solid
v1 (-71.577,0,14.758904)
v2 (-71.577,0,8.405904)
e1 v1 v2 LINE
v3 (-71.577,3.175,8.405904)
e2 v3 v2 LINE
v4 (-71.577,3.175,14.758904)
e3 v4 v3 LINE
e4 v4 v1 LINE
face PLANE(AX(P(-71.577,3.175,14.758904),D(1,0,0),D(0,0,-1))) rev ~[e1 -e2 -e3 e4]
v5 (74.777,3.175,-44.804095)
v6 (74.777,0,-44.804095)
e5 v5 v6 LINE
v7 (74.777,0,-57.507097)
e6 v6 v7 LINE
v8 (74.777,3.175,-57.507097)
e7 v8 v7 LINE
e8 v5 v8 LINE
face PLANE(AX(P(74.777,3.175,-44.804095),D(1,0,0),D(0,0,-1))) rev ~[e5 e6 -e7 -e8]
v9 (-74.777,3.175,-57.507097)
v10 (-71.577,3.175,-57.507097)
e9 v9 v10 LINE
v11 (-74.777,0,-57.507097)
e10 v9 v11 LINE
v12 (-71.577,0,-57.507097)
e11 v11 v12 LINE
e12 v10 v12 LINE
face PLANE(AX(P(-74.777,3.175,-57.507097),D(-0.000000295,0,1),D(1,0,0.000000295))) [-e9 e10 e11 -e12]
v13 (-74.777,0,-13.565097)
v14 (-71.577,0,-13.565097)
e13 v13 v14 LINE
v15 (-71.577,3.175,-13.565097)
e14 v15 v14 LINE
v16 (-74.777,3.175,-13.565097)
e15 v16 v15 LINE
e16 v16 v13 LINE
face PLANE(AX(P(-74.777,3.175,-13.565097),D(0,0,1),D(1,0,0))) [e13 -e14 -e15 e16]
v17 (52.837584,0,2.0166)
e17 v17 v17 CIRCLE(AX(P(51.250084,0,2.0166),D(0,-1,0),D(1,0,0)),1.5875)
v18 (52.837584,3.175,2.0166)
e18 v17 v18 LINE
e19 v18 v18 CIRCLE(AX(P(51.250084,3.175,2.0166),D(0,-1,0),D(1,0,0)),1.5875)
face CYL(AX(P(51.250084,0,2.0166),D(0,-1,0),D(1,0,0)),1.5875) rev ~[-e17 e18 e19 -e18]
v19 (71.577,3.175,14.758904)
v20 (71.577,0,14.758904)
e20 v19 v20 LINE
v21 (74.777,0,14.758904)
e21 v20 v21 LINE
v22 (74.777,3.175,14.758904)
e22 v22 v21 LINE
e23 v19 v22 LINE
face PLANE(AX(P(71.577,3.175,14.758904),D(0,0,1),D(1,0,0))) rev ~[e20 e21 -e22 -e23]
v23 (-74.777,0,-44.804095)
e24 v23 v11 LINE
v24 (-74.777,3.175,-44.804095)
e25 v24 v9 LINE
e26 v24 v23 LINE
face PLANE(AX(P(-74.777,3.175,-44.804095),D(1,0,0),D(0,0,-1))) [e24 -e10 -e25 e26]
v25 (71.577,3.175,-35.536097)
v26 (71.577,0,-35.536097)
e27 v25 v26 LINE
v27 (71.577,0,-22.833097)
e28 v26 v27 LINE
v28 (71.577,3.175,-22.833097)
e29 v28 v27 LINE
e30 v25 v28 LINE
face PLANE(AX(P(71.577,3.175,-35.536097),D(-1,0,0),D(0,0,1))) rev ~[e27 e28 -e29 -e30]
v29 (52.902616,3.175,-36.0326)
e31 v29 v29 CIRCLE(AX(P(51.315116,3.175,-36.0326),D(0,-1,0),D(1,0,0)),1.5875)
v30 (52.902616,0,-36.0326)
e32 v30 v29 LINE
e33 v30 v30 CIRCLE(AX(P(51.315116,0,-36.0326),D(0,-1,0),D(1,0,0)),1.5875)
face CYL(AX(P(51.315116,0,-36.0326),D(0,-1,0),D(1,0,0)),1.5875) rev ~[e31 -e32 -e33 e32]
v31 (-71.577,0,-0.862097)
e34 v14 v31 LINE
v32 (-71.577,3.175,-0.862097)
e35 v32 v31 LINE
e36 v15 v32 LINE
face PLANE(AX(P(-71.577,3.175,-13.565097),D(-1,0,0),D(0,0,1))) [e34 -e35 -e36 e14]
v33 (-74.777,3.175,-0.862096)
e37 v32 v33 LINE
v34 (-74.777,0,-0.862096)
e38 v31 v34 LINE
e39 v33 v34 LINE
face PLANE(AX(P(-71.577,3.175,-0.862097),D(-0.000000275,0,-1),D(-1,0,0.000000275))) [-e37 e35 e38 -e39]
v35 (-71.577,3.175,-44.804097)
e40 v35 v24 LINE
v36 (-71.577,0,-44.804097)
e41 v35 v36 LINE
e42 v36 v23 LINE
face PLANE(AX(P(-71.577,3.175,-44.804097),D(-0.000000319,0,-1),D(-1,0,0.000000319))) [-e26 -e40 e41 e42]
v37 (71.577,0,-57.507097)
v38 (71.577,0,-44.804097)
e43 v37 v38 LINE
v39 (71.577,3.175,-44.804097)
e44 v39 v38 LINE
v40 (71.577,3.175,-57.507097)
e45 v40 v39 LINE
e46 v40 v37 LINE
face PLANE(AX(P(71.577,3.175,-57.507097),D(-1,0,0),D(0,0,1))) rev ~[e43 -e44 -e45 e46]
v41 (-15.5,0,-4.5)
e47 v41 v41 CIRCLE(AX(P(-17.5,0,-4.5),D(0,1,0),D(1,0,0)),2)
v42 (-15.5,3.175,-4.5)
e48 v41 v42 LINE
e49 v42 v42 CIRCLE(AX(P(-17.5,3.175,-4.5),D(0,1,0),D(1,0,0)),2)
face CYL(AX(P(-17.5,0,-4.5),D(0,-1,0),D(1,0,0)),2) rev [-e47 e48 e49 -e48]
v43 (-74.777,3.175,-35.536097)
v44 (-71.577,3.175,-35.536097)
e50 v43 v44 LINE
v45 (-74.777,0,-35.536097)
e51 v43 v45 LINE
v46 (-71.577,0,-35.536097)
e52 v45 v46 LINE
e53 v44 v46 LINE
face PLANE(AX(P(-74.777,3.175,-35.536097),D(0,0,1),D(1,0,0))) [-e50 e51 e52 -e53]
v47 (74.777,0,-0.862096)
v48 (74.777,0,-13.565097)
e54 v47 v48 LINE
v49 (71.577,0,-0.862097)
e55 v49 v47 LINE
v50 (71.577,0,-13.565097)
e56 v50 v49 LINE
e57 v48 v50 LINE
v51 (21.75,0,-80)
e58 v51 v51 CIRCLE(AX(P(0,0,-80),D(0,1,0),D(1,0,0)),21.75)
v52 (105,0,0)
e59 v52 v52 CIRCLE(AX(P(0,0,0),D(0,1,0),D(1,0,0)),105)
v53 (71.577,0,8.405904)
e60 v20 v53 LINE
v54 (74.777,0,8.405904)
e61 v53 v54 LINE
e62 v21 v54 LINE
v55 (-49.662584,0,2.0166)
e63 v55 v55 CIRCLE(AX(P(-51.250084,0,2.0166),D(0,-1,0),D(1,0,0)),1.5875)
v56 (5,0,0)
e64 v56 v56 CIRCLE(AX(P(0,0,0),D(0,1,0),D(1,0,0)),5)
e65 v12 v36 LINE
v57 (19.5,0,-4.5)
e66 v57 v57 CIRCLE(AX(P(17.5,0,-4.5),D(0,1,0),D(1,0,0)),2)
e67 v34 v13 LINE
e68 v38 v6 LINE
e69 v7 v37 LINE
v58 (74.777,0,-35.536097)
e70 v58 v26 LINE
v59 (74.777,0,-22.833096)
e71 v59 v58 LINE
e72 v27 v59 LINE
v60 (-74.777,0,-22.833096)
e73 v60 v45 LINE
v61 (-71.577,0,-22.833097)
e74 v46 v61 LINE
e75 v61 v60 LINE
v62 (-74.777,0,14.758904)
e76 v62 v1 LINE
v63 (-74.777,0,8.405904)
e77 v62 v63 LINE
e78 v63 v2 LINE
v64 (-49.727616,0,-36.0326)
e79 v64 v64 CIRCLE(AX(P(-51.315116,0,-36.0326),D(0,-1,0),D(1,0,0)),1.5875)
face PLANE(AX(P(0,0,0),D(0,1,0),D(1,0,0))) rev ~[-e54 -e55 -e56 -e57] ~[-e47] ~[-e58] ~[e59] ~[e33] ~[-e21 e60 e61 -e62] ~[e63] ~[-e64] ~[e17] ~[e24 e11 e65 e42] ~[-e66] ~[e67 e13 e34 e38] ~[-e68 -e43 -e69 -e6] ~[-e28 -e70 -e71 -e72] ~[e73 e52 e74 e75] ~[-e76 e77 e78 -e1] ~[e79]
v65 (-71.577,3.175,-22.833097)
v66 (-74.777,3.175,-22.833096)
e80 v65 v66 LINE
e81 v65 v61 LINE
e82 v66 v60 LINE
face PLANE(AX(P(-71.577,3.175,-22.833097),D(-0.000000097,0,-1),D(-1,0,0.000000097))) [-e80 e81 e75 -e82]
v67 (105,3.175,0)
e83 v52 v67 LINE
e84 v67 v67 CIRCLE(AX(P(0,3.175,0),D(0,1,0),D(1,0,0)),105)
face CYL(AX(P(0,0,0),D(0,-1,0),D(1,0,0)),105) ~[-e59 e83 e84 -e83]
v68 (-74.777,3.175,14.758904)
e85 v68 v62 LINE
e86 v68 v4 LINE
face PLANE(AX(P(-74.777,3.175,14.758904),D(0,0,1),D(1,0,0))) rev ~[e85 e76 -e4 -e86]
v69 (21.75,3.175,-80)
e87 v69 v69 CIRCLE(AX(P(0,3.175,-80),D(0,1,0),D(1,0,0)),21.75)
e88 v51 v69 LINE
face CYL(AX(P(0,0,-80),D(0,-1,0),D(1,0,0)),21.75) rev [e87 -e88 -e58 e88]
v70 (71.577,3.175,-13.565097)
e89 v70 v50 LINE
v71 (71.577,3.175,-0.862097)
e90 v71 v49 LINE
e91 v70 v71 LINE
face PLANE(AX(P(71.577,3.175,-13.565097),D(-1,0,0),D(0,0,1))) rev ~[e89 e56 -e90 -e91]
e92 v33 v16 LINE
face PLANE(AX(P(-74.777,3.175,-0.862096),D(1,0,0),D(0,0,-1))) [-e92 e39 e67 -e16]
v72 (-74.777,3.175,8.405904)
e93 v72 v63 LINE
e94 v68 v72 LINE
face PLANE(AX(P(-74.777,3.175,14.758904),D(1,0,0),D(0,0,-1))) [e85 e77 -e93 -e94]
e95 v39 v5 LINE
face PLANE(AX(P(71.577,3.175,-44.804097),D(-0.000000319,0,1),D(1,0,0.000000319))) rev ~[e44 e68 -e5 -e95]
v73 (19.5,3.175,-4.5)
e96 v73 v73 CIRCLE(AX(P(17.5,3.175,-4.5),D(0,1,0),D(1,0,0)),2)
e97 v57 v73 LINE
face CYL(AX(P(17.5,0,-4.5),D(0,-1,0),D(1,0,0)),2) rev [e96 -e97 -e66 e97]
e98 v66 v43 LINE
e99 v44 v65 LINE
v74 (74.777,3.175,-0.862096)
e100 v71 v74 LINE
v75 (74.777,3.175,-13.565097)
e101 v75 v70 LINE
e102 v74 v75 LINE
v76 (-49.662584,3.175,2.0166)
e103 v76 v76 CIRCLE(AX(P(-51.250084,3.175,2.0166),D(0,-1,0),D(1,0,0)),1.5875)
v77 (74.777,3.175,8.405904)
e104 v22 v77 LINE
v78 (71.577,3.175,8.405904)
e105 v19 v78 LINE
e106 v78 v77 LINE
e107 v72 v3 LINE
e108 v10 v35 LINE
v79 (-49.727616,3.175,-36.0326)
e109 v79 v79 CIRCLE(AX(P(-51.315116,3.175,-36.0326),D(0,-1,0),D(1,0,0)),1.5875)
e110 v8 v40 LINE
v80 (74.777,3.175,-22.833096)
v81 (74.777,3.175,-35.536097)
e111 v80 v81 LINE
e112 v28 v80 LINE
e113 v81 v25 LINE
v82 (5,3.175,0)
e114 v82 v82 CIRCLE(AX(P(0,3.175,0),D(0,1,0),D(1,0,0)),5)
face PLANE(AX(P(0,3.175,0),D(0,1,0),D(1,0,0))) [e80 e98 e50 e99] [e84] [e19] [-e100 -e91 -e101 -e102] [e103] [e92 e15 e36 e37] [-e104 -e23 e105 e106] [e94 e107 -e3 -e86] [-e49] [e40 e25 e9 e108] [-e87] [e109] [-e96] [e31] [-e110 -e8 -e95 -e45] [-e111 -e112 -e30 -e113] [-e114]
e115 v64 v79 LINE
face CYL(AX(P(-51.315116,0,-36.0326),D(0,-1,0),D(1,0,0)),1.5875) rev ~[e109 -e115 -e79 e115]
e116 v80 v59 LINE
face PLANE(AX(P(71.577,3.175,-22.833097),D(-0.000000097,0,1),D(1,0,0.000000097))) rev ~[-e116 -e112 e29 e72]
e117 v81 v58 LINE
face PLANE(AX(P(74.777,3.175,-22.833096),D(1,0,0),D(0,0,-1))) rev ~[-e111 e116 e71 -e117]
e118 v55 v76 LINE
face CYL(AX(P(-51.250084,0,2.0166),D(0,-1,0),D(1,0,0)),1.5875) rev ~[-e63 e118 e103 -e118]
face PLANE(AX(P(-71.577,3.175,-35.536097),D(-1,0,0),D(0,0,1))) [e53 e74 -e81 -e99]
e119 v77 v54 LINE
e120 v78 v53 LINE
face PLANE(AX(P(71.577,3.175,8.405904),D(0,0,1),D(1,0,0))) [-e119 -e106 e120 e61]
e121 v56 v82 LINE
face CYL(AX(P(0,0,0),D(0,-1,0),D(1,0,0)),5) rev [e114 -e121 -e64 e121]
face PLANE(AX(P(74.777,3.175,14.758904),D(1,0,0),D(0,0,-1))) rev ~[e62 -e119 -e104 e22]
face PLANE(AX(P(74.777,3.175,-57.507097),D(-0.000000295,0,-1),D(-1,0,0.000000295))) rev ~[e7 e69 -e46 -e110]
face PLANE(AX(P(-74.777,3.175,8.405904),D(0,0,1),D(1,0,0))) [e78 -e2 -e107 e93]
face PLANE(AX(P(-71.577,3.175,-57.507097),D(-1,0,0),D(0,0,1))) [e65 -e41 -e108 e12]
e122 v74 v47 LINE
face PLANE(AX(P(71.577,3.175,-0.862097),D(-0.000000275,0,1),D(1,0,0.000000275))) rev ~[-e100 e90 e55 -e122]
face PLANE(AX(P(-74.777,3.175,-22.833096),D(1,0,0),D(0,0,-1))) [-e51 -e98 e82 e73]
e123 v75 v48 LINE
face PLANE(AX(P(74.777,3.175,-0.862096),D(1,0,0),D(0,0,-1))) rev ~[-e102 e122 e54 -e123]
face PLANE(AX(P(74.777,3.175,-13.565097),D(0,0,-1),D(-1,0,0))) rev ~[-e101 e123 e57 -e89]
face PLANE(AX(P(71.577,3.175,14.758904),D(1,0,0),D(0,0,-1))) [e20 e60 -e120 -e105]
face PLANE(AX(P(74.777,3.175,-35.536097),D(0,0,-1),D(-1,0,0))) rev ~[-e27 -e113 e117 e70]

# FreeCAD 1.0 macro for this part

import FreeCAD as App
import Part
import Sketcher
from FreeCAD import Vector


def add_polygon(sketch, points):
    """Adds a closed chain of lines whose ends are joined by coincident constraints."""
    first, n = sketch.GeometryCount, len(points)
    for a, b in zip(points, points[1:] + points[:1]):
        sketch.addGeometry(Part.LineSegment(App.Vector(*a, 0), App.Vector(*b, 0)), False)
    for i in range(n):
        sketch.addConstraint(Sketcher.Constraint("Coincident", first + i, 2, first + (i + 1) % n, 1))

doc = App.newDocument("Part")
body = doc.addObject("PartDesign::Body", "Body")

sketch1 = doc.addObject("Sketcher::SketchObject", "Sketch")
body.addObject(sketch1)
sketch1.AttachmentSupport = (doc.XZ_Plane, [""])
sketch1.MapMode = "FlatFace"
sketch1.addGeometry([
    Part.Circle(Vector(0, 0, 0), Vector(0, 0, 1), 105),
    Part.Circle(Vector(-17.5, -4.5, 0), Vector(0, 0, 1), 2),
    Part.Circle(Vector(0, 0, 0), Vector(0, 0, 1), 5),
    Part.Circle(Vector(17.5, -4.5, 0), Vector(0, 0, 1), 2),
    Part.Circle(Vector(0, -80, 0), Vector(0, 0, 1), 21.8),
], False)
sketch1.addConstraint([
    Sketcher.Constraint("Coincident", 0, 3, -1, 1),
    Sketcher.Constraint("Coincident", 2, 3, -1, 1),
    Sketcher.Constraint("Equal", 1, 3),
    Sketcher.Constraint("Symmetric", 1, 3, 3, 3, -2),
    Sketcher.Constraint("PointOnObject", 4, 3, -2),
    Sketcher.Constraint("Diameter", 0, 210.0),
    Sketcher.Constraint("Diameter", 1, 4.0),
    Sketcher.Constraint("Diameter", 2, 10.0),
    Sketcher.Constraint("Diameter", 4, 43.5),
    Sketcher.Constraint("DistanceY", 4, 3, -1, 1, 80.0),
    Sketcher.Constraint("DistanceX", 1, 3, 3, 3, 35.0),
    Sketcher.Constraint("DistanceY", 1, 3, -1, 1, 4.5),
])
pad1 = doc.addObject("PartDesign::Pad", "Pad")
body.addObject(pad1)
pad1.Profile = sketch1
pad1.Length = 3.175
pad1.Reversed = True

sketch2 = doc.addObject("Sketcher::SketchObject", "Sketch001")
body.addObject(sketch2)
sketch2.AttachmentSupport = (doc.XZ_Plane, [""])
sketch2.MapMode = "FlatFace"
sketch2.AttachmentOffset = App.Placement(Vector(0, 0, -3.175), App.Rotation())
add_polygon(sketch2, [(-71.6, -57.5), (-74.8, -57.5), (-74.8, -44.8), (-71.6, -44.8)])
add_polygon(sketch2, [(71.6, 8.4), (71.6, 14.8), (74.8, 14.8), (74.8, 8.4)])
add_polygon(sketch2, [(-71.6, -35.5), (-74.8, -35.5), (-74.8, -22.8), (-71.6, -22.8)])
add_polygon(sketch2, [(-71.6, -13.6), (-74.8, -13.6), (-74.8, -0.9), (-71.6, -0.9)])
add_polygon(sketch2, [(-74.8, 8.4), (-74.8, 14.8), (-71.6, 14.8), (-71.6, 8.4)])
add_polygon(sketch2, [(71.6, -13.6), (71.6, -0.9), (74.8, -0.9), (74.8, -13.6)])
add_polygon(sketch2, [(71.6, -35.5), (71.6, -22.8), (74.8, -22.8), (74.8, -35.5)])
add_polygon(sketch2, [(71.6, -57.5), (71.6, -44.8), (74.8, -44.8), (74.8, -57.5)])
sketch2.addConstraint([
    Sketcher.Constraint("Horizontal", 0),
    Sketcher.Constraint("Vertical", 1),
    Sketcher.Constraint("Horizontal", 2),
    Sketcher.Constraint("Vertical", 3),
    Sketcher.Constraint("Vertical", 4),
    Sketcher.Constraint("Horizontal", 5),
    Sketcher.Constraint("Vertical", 6),
    Sketcher.Constraint("Horizontal", 7),
    Sketcher.Constraint("Horizontal", 8),
    Sketcher.Constraint("Vertical", 9),
    Sketcher.Constraint("Horizontal", 10),
    Sketcher.Constraint("Vertical", 11),
    Sketcher.Constraint("Horizontal", 12),
    Sketcher.Constraint("Vertical", 13),
    Sketcher.Constraint("Horizontal", 14),
    Sketcher.Constraint("Vertical", 15),
    Sketcher.Constraint("Vertical", 16),
    Sketcher.Constraint("Horizontal", 17),
    Sketcher.Constraint("Vertical", 18),
    Sketcher.Constraint("Horizontal", 19),
    Sketcher.Constraint("Vertical", 20),
    Sketcher.Constraint("Horizontal", 21),
    Sketcher.Constraint("Vertical", 22),
    Sketcher.Constraint("Horizontal", 23),
    Sketcher.Constraint("Vertical", 24),
    Sketcher.Constraint("Horizontal", 25),
    Sketcher.Constraint("Vertical", 26),
    Sketcher.Constraint("Horizontal", 27),
    Sketcher.Constraint("Vertical", 28),
    Sketcher.Constraint("Horizontal", 29),
    Sketcher.Constraint("Vertical", 30),
    Sketcher.Constraint("Horizontal", 31),
    Sketcher.Constraint("Symmetric", 5, 2, 16, 2, -2),
    Sketcher.Constraint("Symmetric", 7, 2, 18, 2, -2),
    Sketcher.Constraint("Symmetric", 14, 2, 20, 2, -2),
    Sketcher.Constraint("Symmetric", 12, 2, 22, 2, -2),
    Sketcher.Constraint("Symmetric", 10, 2, 24, 2, -2),
    Sketcher.Constraint("Symmetric", 8, 2, 26, 2, -2),
    Sketcher.Constraint("Symmetric", 2, 2, 28, 2, -2),
    Sketcher.Constraint("Symmetric", 0, 2, 30, 2, -2),
    Sketcher.Constraint("Vertical", 1, 2, 8, 2),
    Sketcher.Constraint("Vertical", 3, 2, 10, 2),
    Sketcher.Constraint("Vertical", 9, 2, 12, 2),
    Sketcher.Constraint("Vertical", 11, 2, 14, 2),
    Sketcher.Constraint("Vertical", 13, 2, 16, 2),
    Sketcher.Constraint("Vertical", 15, 2, 17, 2),
    Sketcher.Constraint("Equal", 3, 9),
    Sketcher.Constraint("Equal", 11, 13),
    Sketcher.Constraint("DistanceX", 0, 2, 0, 1, 3.2),
    Sketcher.Constraint("DistanceY", 1, 1, 1, 2, 12.703002),
    Sketcher.Constraint("DistanceY", 4, 1, 4, 2, 6.353),
    Sketcher.Constraint("DistanceY", 2, 2, 6, 2, 53.21),
    Sketcher.Constraint("DistanceX", 0, 2, -1, 1, 74.777),
    Sketcher.Constraint("DistanceY", 1, 2, 8, 2, 9.267999),
    Sketcher.Constraint("DistanceY", 9, 2, 12, 2, 9.268),
    Sketcher.Constraint("DistanceY", 0, 2, -1, 1, 57.507097),
])
pocket1 = doc.addObject("PartDesign::Pocket", "Pocket")
body.addObject(pocket1)
pocket1.Profile = sketch2
pocket1.Type = "ThroughAll"
pocket1.Reversed = True

sketch3 = doc.addObject("Sketcher::SketchObject", "Sketch002")
body.addObject(sketch3)
sketch3.AttachmentSupport = (doc.XZ_Plane, [""])
sketch3.MapMode = "FlatFace"
sketch3.addGeometry([
    Part.Circle(Vector(51.3, 2, 0), Vector(0, 0, 1), 1.6),
    Part.Circle(Vector(-51.3, -36, 0), Vector(0, 0, 1), 1.6),
    Part.Circle(Vector(-51.3, 2, 0), Vector(0, 0, 1), 1.6),
    Part.Circle(Vector(51.3, -36, 0), Vector(0, 0, 1), 1.6),
], False)
sketch3.addConstraint([
    Sketcher.Constraint("Equal", 0, 1),
    Sketcher.Constraint("Equal", 1, 2),
    Sketcher.Constraint("Equal", 2, 3),
    Sketcher.Constraint("Symmetric", 0, 3, 2, 3, -2),
    Sketcher.Constraint("Symmetric", 1, 3, 3, 3, -2),
    Sketcher.Constraint("Diameter", 0, 3.175),
    Sketcher.Constraint("DistanceY", -1, 1, 0, 3, 2.0166),
    Sketcher.Constraint("DistanceY", 1, 3, -1, 1, 36.0326),
    Sketcher.Constraint("DistanceX", 1, 3, 0, 3, 102.5652),
    Sketcher.Constraint("DistanceX", 2, 3, 0, 3, 102.500168),
])
pocket2 = doc.addObject("PartDesign::Pocket", "Pocket001")
body.addObject(pocket2)
pocket2.Profile = sketch3
pocket2.Type = "ThroughAll"

doc.recompute()
